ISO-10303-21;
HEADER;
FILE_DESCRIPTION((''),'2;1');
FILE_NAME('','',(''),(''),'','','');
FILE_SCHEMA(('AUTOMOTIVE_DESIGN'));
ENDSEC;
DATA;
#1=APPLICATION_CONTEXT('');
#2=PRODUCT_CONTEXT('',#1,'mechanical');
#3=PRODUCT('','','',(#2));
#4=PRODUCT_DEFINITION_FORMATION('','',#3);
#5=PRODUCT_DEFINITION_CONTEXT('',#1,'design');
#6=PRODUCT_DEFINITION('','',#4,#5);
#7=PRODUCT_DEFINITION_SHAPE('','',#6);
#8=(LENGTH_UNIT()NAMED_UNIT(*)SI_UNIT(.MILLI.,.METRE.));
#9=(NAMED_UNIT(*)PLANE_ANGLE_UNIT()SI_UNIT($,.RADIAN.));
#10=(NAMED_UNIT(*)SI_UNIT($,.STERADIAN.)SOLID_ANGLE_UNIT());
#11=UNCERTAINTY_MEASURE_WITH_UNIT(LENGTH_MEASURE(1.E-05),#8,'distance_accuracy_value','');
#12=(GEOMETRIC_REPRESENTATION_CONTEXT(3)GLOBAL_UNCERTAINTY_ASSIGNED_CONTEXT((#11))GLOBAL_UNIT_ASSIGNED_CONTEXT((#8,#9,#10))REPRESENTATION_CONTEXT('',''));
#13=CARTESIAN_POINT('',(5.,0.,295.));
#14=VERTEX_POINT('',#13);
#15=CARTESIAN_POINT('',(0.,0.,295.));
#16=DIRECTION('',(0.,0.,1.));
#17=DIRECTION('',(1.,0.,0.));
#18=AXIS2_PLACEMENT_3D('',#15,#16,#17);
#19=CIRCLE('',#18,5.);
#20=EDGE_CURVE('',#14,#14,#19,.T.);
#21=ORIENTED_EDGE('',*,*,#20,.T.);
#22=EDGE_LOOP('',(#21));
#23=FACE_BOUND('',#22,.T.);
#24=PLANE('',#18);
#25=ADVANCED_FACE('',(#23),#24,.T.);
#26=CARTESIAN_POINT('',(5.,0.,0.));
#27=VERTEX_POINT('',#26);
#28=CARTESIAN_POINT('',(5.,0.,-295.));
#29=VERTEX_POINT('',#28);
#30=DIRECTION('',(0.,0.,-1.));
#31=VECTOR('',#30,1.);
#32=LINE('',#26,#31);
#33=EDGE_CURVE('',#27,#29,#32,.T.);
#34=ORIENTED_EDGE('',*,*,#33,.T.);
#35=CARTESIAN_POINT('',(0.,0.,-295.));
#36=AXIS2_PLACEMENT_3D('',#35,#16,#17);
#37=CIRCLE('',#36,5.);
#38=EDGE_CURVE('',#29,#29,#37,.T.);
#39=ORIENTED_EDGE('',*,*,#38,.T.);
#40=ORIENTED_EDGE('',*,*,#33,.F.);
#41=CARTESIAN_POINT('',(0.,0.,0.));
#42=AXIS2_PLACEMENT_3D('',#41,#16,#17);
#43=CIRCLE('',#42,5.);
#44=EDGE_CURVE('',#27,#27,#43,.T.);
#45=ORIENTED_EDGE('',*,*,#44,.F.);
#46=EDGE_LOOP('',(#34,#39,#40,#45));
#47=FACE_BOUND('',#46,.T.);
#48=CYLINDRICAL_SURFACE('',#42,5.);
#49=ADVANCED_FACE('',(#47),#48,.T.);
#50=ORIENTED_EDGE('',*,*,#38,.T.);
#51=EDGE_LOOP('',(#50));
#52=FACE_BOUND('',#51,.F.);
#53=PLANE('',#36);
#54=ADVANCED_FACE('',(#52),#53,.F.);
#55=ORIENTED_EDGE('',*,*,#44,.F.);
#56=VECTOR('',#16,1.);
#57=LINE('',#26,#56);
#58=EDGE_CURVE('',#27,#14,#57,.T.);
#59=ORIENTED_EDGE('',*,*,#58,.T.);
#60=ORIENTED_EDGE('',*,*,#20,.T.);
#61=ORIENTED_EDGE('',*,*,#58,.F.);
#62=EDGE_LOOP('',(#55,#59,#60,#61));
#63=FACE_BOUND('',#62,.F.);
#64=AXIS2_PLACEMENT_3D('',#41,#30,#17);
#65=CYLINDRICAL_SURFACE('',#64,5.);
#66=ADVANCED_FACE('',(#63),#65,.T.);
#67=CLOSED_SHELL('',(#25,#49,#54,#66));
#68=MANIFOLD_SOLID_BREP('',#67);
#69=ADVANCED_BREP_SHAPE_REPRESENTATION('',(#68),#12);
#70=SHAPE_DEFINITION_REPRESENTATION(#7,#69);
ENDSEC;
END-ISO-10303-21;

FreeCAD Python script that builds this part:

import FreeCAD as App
import Part
import Sketcher
from FreeCAD import Vector

doc = App.newDocument("Part")
body = doc.addObject("PartDesign::Body", "Body")

# Sketch on XY plane
sketch1 = body.newObject("Sketcher::SketchObject", "Sketch")
sketch1.AttachmentSupport = (doc.getObject("XY_Plane"), [""])
sketch1.MapMode = "FlatFace"
sketch1.addGeometry(Part.Circle(Vector(0, 0, 0), Vector(0, 0, 1), 5), False)
sketch1.addConstraint(Sketcher.Constraint("Coincident", 0, 3, -1, 1))
sketch1.addConstraint(Sketcher.Constraint("Diameter", 0, 10.0))
pad1 = body.newObject("PartDesign::Pad", "Pad")
pad1.Profile = sketch1
pad1.Length = 590
pad1.Midplane = True

doc.recompute()
